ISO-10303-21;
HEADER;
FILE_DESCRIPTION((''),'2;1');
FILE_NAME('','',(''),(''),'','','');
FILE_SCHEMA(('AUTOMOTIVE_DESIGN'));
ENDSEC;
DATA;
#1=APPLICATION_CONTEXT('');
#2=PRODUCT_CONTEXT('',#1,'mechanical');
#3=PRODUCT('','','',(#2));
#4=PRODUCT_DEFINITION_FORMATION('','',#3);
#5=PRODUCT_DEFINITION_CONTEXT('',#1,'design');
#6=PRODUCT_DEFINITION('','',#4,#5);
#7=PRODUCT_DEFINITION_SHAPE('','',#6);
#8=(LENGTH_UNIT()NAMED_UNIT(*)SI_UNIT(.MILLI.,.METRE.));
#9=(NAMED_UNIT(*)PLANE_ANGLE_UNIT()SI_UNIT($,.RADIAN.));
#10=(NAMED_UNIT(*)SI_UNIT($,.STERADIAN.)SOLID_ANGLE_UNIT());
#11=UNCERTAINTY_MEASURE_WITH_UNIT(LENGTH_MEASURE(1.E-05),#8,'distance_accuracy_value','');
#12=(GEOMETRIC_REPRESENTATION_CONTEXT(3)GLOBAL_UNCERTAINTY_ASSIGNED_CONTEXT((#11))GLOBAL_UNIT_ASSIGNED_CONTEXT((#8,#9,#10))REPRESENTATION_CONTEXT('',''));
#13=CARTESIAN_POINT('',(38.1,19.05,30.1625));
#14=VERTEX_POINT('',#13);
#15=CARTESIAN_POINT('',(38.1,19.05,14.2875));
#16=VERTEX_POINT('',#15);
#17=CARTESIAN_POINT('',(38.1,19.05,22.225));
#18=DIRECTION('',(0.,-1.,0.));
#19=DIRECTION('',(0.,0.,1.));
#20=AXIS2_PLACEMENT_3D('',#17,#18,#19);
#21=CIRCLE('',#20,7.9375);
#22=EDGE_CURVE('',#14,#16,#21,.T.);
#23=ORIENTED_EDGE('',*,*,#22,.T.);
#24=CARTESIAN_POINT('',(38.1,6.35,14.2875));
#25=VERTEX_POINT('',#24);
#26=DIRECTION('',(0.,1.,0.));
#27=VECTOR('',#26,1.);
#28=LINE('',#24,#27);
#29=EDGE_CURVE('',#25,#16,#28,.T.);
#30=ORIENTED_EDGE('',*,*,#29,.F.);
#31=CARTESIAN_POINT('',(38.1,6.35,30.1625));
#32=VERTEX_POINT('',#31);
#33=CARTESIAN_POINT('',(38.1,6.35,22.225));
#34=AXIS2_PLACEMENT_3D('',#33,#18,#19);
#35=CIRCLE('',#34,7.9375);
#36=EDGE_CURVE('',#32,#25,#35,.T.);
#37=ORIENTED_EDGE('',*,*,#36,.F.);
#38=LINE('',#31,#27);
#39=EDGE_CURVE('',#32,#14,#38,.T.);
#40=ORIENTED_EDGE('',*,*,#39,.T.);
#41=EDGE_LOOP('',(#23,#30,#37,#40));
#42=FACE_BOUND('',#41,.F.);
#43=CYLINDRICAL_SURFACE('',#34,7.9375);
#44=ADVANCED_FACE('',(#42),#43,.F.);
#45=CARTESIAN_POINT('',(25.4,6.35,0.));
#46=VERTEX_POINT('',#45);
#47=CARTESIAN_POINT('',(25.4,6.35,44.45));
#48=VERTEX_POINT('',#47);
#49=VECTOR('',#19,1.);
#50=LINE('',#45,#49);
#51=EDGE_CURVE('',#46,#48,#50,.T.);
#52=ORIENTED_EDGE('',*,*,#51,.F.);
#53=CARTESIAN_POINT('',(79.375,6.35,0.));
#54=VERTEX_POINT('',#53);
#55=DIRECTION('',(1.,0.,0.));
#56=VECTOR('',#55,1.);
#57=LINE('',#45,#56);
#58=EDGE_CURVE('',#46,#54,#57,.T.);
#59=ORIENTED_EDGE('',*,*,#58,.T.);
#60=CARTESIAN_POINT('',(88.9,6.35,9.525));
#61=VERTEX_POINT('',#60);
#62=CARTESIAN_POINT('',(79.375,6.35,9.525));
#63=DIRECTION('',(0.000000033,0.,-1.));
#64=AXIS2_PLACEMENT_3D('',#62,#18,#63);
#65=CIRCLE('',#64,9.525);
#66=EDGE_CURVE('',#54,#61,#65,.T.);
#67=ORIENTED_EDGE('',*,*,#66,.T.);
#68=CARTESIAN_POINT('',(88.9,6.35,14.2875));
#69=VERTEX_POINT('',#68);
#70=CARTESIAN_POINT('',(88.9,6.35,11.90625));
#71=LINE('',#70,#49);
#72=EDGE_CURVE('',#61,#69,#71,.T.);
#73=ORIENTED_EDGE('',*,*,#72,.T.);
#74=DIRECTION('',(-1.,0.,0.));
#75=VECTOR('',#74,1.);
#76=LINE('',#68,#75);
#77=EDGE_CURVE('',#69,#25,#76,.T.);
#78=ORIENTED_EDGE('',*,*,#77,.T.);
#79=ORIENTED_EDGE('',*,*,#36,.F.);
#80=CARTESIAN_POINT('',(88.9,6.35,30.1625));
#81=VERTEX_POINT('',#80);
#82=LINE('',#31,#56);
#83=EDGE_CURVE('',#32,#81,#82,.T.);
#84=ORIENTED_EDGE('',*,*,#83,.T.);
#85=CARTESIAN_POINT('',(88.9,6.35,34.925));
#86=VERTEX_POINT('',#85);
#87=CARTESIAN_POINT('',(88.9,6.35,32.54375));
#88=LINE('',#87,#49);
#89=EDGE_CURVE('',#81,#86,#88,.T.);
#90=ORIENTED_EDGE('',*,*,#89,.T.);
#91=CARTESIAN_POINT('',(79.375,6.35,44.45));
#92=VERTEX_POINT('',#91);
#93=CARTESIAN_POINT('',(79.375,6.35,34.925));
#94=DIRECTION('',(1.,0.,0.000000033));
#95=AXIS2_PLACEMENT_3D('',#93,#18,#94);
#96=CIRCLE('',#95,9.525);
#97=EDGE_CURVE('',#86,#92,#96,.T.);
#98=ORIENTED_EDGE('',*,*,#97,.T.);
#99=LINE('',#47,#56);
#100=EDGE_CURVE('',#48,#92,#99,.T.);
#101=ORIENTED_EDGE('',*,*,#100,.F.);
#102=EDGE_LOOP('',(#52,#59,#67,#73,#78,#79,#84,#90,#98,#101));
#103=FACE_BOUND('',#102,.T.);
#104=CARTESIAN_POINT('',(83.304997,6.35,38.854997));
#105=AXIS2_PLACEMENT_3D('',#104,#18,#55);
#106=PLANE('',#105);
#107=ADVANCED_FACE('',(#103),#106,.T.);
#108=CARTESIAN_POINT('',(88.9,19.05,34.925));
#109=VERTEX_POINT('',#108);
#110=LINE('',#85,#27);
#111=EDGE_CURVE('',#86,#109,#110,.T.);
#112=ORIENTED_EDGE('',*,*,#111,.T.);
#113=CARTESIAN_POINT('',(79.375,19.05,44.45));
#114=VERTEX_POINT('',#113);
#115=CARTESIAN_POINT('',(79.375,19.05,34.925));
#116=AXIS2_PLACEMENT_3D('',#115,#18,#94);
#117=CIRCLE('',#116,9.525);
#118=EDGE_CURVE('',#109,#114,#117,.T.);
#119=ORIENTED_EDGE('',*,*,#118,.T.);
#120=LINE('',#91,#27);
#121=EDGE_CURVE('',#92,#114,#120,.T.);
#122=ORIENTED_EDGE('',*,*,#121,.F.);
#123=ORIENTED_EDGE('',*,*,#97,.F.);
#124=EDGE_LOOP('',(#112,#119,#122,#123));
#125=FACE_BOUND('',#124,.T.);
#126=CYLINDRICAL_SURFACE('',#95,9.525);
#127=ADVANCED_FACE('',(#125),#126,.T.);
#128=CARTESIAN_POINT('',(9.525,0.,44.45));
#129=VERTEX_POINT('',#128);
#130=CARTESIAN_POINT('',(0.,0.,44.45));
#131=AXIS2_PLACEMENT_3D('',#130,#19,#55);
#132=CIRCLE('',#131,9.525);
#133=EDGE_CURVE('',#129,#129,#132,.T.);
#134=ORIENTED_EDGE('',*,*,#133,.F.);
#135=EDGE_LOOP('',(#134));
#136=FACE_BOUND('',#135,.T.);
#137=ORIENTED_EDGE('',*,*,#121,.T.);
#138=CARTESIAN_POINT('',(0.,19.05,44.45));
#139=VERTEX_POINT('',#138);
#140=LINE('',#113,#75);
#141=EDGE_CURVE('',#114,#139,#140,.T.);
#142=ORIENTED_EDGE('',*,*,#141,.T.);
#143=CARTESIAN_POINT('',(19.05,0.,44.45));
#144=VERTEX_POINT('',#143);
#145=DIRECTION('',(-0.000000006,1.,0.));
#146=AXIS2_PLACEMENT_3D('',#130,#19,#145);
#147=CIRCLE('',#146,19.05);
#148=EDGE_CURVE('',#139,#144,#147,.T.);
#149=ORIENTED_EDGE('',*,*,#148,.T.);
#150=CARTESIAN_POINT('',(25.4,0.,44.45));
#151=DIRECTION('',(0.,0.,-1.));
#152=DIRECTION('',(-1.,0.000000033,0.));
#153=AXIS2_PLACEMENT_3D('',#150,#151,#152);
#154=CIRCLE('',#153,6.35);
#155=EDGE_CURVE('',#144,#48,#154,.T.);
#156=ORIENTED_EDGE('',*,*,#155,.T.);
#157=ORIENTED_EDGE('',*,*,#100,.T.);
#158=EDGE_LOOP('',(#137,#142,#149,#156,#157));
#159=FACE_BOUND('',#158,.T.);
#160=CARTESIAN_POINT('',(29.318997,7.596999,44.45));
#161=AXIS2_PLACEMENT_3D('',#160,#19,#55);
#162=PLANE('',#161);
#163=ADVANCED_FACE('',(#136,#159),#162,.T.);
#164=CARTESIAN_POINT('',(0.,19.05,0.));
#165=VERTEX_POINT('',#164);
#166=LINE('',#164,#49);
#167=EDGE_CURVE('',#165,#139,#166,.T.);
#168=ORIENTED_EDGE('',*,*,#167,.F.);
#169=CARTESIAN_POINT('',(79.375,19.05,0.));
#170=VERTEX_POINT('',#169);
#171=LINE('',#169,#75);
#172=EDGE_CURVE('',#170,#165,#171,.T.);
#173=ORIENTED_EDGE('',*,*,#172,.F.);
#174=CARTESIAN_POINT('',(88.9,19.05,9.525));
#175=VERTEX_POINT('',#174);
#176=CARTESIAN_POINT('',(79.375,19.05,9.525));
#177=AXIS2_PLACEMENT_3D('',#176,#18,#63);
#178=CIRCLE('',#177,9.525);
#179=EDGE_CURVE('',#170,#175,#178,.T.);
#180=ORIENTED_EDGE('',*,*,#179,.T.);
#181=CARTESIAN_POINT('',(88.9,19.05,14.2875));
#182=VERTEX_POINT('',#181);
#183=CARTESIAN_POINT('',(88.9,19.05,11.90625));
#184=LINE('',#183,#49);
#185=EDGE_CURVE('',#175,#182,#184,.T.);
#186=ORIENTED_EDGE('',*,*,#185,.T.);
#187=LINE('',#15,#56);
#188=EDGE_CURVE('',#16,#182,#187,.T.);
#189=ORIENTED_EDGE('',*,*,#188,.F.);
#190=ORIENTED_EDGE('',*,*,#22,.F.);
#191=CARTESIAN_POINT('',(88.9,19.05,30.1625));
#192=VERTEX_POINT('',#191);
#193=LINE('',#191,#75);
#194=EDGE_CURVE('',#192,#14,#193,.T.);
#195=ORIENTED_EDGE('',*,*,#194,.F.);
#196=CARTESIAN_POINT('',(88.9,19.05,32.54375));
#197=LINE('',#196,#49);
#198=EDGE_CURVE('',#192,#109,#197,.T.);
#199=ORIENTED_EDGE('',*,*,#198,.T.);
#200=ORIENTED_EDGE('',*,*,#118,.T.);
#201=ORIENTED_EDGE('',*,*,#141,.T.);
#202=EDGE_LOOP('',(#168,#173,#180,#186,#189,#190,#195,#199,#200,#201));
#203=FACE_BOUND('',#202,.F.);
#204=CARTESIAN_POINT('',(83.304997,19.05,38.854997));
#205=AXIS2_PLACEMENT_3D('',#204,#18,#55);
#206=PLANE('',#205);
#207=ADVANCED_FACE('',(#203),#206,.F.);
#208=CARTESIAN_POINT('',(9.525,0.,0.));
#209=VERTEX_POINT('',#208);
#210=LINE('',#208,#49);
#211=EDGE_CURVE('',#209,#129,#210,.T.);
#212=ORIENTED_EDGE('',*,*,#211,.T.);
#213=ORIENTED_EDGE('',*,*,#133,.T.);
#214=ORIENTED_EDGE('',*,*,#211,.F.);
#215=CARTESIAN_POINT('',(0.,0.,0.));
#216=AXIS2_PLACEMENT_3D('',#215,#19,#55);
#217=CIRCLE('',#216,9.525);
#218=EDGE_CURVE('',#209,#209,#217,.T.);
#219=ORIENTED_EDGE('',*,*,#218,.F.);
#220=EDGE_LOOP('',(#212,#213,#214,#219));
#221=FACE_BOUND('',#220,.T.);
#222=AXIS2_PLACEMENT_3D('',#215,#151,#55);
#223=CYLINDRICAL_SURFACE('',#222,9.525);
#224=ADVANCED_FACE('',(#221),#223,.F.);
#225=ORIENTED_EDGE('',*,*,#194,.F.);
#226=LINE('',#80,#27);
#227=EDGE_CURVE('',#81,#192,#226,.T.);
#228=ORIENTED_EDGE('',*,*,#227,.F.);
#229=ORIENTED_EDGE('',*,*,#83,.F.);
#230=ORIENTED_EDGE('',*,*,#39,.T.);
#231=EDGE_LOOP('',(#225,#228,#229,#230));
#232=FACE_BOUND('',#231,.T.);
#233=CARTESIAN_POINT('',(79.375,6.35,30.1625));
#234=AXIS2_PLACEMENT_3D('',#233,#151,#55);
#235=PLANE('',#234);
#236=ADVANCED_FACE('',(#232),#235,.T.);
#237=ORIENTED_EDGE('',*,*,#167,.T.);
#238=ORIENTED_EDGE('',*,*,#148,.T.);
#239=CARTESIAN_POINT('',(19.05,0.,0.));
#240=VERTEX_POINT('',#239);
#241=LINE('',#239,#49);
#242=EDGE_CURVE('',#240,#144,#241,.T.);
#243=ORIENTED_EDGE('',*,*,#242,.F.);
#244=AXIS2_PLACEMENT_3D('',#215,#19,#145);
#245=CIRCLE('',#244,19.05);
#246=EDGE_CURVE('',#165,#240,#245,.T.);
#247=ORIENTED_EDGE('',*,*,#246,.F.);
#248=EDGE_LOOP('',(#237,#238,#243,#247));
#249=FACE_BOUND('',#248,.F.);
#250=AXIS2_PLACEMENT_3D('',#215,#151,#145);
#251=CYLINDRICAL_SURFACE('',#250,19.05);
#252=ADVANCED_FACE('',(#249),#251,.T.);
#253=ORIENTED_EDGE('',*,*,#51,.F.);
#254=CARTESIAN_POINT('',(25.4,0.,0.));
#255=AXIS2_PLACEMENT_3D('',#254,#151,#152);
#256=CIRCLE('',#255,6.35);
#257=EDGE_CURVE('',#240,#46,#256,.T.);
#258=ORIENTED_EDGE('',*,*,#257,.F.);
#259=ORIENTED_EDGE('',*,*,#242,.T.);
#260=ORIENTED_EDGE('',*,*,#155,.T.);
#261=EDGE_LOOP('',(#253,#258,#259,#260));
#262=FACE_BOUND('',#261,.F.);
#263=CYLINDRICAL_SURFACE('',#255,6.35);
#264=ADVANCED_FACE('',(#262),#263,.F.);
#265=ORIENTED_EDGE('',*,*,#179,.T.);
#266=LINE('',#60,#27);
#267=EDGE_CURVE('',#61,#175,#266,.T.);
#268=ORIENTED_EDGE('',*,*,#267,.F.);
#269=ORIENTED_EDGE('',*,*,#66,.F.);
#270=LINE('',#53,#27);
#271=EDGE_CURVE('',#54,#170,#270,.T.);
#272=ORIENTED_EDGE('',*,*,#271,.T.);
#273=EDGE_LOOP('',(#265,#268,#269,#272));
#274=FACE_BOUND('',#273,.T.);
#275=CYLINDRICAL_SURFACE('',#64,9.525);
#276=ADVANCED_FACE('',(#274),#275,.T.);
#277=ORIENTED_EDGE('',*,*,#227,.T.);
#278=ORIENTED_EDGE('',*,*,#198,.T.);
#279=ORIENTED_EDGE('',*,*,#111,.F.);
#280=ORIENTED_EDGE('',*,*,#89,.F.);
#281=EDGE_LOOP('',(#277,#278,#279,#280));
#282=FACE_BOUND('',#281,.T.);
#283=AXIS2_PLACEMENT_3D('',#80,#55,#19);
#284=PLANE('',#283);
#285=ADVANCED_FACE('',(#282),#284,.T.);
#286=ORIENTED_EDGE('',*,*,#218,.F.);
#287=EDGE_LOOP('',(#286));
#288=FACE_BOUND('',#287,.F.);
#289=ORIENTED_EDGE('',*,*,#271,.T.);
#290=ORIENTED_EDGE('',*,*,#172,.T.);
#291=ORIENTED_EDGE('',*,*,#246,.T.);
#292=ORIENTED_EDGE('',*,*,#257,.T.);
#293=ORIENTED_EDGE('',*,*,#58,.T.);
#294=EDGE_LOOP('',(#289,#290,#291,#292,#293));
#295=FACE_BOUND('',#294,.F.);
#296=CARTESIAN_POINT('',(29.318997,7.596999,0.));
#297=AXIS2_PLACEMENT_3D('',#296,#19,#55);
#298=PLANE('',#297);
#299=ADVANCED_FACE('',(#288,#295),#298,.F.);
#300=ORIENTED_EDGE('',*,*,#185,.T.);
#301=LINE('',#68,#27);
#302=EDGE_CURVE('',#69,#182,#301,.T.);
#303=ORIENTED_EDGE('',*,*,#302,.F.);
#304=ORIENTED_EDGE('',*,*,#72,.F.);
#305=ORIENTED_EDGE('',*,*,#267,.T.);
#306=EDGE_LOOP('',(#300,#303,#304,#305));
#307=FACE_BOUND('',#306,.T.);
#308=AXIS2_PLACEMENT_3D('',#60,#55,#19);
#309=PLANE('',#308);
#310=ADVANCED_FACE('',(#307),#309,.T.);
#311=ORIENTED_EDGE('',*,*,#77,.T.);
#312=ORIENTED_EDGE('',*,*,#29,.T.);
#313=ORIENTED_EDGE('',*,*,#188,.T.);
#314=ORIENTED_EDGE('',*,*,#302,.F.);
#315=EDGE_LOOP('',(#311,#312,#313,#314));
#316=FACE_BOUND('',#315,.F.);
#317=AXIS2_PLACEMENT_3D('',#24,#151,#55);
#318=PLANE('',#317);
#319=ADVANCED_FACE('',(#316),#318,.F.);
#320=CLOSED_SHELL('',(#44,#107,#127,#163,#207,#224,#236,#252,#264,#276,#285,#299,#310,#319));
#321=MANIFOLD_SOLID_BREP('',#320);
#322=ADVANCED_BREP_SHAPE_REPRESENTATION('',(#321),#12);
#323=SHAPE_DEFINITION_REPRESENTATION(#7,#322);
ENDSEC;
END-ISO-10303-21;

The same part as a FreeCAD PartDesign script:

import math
import FreeCAD as App
import Part
import Sketcher
Q = App.Units.Quantity

doc = App.newDocument("Part")
params = doc.addObject("Spreadsheet::Sheet", "Params")
for row, (alias, value) in enumerate([
    ("sketch1_diameter", "0.75 in"),
    ("sketch1_radius", "0.75 in"),
    ("sketch1_radius2", "0.25 in"),
    ("sketch1_width", "3.125 in"),
    ("pad1_length", "1.75 in"),
    ("sketch2_radius", "0.375 in"),
    ("sketch2_height", "0.5625 in"),
    ("pad2_length", "0.5 in"),
    ("sketch3_radius", "0.3125 in"),
    ("sketch3_width", "1.625 in"),
    ("pocket1_length", "0.5 in"),
], start=1):
    params.set(f"A{row}", alias)
    params.set(f"B{row}", "=" + value)
    params.setAlias(f"B{row}", alias)

body = doc.addObject("PartDesign::Body", "Body")

# Sketch on XY plane
sketch1 = body.newObject("Sketcher::SketchObject", "Sketch")
sketch1.AttachmentSupport = (doc.getObject("XY_Plane"), [""])
sketch1.MapMode = "FlatFace"
sketch1.addGeometry(Part.LineSegment(App.Vector(79, 19, 0), App.Vector(0, 19, 0)), False)
sketch1.addGeometry(Part.ArcOfCircle(Part.Circle(App.Vector(0, 0, 0), App.Vector(0, 0, 1), 19), math.radians(90), math.radians(360)), False)
sketch1.addGeometry(Part.ArcOfCircle(Part.Circle(App.Vector(25, 0, 0), App.Vector(0, 0, 1), 6), math.radians(90), math.radians(180)), False)
sketch1.addGeometry(Part.LineSegment(App.Vector(25, 6, 0), App.Vector(79, 6, 0)), False)
sketch1.addGeometry(Part.LineSegment(App.Vector(79, 6, 0), App.Vector(79, 19, 0)), False)
sketch1.addGeometry(Part.Circle(App.Vector(0, 0, 0), App.Vector(0, 0, 1), 10), False)
sketch1.addConstraint(Sketcher.Constraint("Tangent", 0, 2, 1, 1))
sketch1.addConstraint(Sketcher.Constraint("Tangent", 1, 2, 2, 2))
sketch1.addConstraint(Sketcher.Constraint("Tangent", 2, 1, 3, 1))
sketch1.addConstraint(Sketcher.Constraint("Coincident", 3, 2, 4, 1))
sketch1.addConstraint(Sketcher.Constraint("Coincident", 4, 2, 0, 1))
sketch1.addConstraint(Sketcher.Constraint("Horizontal", 0))
sketch1.addConstraint(Sketcher.Constraint("Horizontal", 3))
sketch1.addConstraint(Sketcher.Constraint("Vertical", 4))
sketch1.addConstraint(Sketcher.Constraint("Coincident", 1, 3, -1, 1))
sketch1.addConstraint(Sketcher.Constraint("Coincident", 5, 3, -1, 1))
sketch1.addConstraint(Sketcher.Constraint("PointOnObject", 2, 3, -1))
sketch1.addConstraint(Sketcher.Constraint("Diameter", 5, Q("0.75 in")))
sketch1.addConstraint(Sketcher.Constraint("Radius", 1, Q("0.75 in")))
sketch1.addConstraint(Sketcher.Constraint("Radius", 2, Q("0.25 in")))
sketch1.addConstraint(Sketcher.Constraint("DistanceX", 0, 2, 0, 1, Q("3.125 in")))
sketch1.setExpression("Constraints[11]", "Params.sketch1_diameter")
sketch1.setExpression("Constraints[12]", "Params.sketch1_radius")
sketch1.setExpression("Constraints[13]", "Params.sketch1_radius2")
sketch1.setExpression("Constraints[14]", "Params.sketch1_width")
pad1 = body.newObject("PartDesign::Pad", "Pad")
pad1.Profile = sketch1
pad1.setExpression("Length", "Params.pad1_length")

# Sketch on XZ plane
sketch2 = body.newObject("Sketcher::SketchObject", "Sketch001")
sketch2.AttachmentSupport = (doc.getObject("XZ_Plane"), [""])
sketch2.MapMode = "FlatFace"
sketch2.AttachmentOffset = App.Placement(App.Vector(0, 0, -0.25 * 25.4), App.Rotation())
sketch2.addGeometry(Part.ArcOfCircle(Part.Circle(App.Vector(79.4, 34.9, 0), App.Vector(0, 0, 1), 9.5), math.radians(0), math.radians(90)), False)
sketch2.addGeometry(Part.LineSegment(App.Vector(79.4, 44.5, 0), App.Vector(79.4, 30.2, 0)), False)
sketch2.addGeometry(Part.LineSegment(App.Vector(79.4, 30.2, 0), App.Vector(88.9, 30.2, 0)), False)
sketch2.addGeometry(Part.LineSegment(App.Vector(88.9, 30.2, 0), App.Vector(88.9, 34.9, 0)), False)
sketch2.addGeometry(Part.ArcOfCircle(Part.Circle(App.Vector(79.4, 9.5, 0), App.Vector(0, 0, 1), 9.5), math.radians(-90), math.radians(0)), False)
sketch2.addGeometry(Part.LineSegment(App.Vector(88.9, 9.5, 0), App.Vector(88.9, 14.3, 0)), False)
sketch2.addGeometry(Part.LineSegment(App.Vector(88.9, 14.3, 0), App.Vector(79.4, 14.3, 0)), False)
sketch2.addGeometry(Part.LineSegment(App.Vector(79.4, 14.3, 0), App.Vector(79.4, 0, 0)), False)
sketch2.addConstraint(Sketcher.Constraint("Coincident", 0, 2, 1, 1))
sketch2.addConstraint(Sketcher.Constraint("Coincident", 1, 2, 2, 1))
sketch2.addConstraint(Sketcher.Constraint("Coincident", 2, 2, 3, 1))
sketch2.addConstraint(Sketcher.Constraint("Tangent", 3, 2, 0, 1))
sketch2.addConstraint(Sketcher.Constraint("Tangent", 4, 2, 5, 1))
sketch2.addConstraint(Sketcher.Constraint("Coincident", 5, 2, 6, 1))
sketch2.addConstraint(Sketcher.Constraint("Coincident", 6, 2, 7, 1))
sketch2.addConstraint(Sketcher.Constraint("Coincident", 7, 2, 4, 1))
sketch2.addConstraint(Sketcher.Constraint("Vertical", 1))
sketch2.addConstraint(Sketcher.Constraint("Horizontal", 2))
sketch2.addConstraint(Sketcher.Constraint("Vertical", 3))
sketch2.addConstraint(Sketcher.Constraint("Vertical", 5))
sketch2.addConstraint(Sketcher.Constraint("Horizontal", 6))
sketch2.addConstraint(Sketcher.Constraint("Vertical", 7))
sketch2.addConstraint(Sketcher.Constraint("Equal", 0, 4))
sketch2.addConstraint(Sketcher.Constraint("PointOnObject", 7, 2, -1))
sketch2.addConstraint(Sketcher.Constraint("Vertical", 0, 3, 4, 3))
sketch2.addConstraint(Sketcher.Constraint("Vertical", 4, 3, 0, 2))
sketch2.addConstraint(Sketcher.Constraint("Vertical", 1, 2, 6, 2))
sketch2.addConstraint(Sketcher.Constraint("Equal", 3, 5))
sketch2.addConstraint(Sketcher.Constraint("Radius", 0, Q("0.375 in")))
sketch2.addConstraint(Sketcher.Constraint("DistanceY", 4, 3, 0, 3, Q("1 in")))
sketch2.addConstraint(Sketcher.Constraint("DistanceX", -1, 1, 2, 2, Q("3.5 in")))
sketch2.addConstraint(Sketcher.Constraint("DistanceY", 1, 2, 1, 1, Q("0.5625 in")))
sketch2.setExpression("Constraints[20]", "Params.sketch2_radius")
sketch2.setExpression("Constraints[23]", "Params.sketch2_height")
pad2 = body.newObject("PartDesign::Pad", "Pad001")
pad2.Profile = sketch2
pad2.setExpression("Length", "Params.pad2_length")
pad2.Reversed = True

# Sketch on XZ plane
sketch3 = body.newObject("Sketcher::SketchObject", "Sketch002")
sketch3.AttachmentSupport = (doc.getObject("XZ_Plane"), [""])
sketch3.MapMode = "FlatFace"
sketch3.AttachmentOffset = App.Placement(App.Vector(0, 0, -0.25 * 25.4), App.Rotation())
sketch3.addGeometry(Part.LineSegment(App.Vector(79, 30, 0), App.Vector(38, 30, 0)), False)
sketch3.addGeometry(Part.ArcOfCircle(Part.Circle(App.Vector(38, 22, 0), App.Vector(0, 0, 1), 8), math.radians(90), math.radians(270)), False)
sketch3.addGeometry(Part.LineSegment(App.Vector(38, 14, 0), App.Vector(79, 14, 0)), False)
sketch3.addGeometry(Part.LineSegment(App.Vector(79, 14, 0), App.Vector(79, 30, 0)), False)
sketch3.addConstraint(Sketcher.Constraint("Tangent", 0, 2, 1, 1))
sketch3.addConstraint(Sketcher.Constraint("Tangent", 1, 2, 2, 1))
sketch3.addConstraint(Sketcher.Constraint("Coincident", 2, 2, 3, 1))
sketch3.addConstraint(Sketcher.Constraint("Coincident", 3, 2, 0, 1))
sketch3.addConstraint(Sketcher.Constraint("Horizontal", 0))
sketch3.addConstraint(Sketcher.Constraint("Horizontal", 2))
sketch3.addConstraint(Sketcher.Constraint("Vertical", 3))
sketch3.addConstraint(Sketcher.Constraint("Radius", 1, Q("0.3125 in")))
sketch3.addConstraint(Sketcher.Constraint("DistanceX", -1, 1, 1, 3, Q("1.5 in")))
sketch3.addConstraint(Sketcher.Constraint("DistanceX", 0, 2, 0, 1, Q("1.625 in")))
sketch3.addConstraint(Sketcher.Constraint("DistanceY", -1, 1, 1, 3, Q("0.875 in")))
sketch3.setExpression("Constraints[7]", "Params.sketch3_radius")
sketch3.setExpression("Constraints[9]", "Params.sketch3_width")
pocket1 = body.newObject("PartDesign::Pocket", "Pocket")
pocket1.Profile = sketch3
pocket1.setExpression("Length", "Params.pocket1_length")

doc.recompute()
